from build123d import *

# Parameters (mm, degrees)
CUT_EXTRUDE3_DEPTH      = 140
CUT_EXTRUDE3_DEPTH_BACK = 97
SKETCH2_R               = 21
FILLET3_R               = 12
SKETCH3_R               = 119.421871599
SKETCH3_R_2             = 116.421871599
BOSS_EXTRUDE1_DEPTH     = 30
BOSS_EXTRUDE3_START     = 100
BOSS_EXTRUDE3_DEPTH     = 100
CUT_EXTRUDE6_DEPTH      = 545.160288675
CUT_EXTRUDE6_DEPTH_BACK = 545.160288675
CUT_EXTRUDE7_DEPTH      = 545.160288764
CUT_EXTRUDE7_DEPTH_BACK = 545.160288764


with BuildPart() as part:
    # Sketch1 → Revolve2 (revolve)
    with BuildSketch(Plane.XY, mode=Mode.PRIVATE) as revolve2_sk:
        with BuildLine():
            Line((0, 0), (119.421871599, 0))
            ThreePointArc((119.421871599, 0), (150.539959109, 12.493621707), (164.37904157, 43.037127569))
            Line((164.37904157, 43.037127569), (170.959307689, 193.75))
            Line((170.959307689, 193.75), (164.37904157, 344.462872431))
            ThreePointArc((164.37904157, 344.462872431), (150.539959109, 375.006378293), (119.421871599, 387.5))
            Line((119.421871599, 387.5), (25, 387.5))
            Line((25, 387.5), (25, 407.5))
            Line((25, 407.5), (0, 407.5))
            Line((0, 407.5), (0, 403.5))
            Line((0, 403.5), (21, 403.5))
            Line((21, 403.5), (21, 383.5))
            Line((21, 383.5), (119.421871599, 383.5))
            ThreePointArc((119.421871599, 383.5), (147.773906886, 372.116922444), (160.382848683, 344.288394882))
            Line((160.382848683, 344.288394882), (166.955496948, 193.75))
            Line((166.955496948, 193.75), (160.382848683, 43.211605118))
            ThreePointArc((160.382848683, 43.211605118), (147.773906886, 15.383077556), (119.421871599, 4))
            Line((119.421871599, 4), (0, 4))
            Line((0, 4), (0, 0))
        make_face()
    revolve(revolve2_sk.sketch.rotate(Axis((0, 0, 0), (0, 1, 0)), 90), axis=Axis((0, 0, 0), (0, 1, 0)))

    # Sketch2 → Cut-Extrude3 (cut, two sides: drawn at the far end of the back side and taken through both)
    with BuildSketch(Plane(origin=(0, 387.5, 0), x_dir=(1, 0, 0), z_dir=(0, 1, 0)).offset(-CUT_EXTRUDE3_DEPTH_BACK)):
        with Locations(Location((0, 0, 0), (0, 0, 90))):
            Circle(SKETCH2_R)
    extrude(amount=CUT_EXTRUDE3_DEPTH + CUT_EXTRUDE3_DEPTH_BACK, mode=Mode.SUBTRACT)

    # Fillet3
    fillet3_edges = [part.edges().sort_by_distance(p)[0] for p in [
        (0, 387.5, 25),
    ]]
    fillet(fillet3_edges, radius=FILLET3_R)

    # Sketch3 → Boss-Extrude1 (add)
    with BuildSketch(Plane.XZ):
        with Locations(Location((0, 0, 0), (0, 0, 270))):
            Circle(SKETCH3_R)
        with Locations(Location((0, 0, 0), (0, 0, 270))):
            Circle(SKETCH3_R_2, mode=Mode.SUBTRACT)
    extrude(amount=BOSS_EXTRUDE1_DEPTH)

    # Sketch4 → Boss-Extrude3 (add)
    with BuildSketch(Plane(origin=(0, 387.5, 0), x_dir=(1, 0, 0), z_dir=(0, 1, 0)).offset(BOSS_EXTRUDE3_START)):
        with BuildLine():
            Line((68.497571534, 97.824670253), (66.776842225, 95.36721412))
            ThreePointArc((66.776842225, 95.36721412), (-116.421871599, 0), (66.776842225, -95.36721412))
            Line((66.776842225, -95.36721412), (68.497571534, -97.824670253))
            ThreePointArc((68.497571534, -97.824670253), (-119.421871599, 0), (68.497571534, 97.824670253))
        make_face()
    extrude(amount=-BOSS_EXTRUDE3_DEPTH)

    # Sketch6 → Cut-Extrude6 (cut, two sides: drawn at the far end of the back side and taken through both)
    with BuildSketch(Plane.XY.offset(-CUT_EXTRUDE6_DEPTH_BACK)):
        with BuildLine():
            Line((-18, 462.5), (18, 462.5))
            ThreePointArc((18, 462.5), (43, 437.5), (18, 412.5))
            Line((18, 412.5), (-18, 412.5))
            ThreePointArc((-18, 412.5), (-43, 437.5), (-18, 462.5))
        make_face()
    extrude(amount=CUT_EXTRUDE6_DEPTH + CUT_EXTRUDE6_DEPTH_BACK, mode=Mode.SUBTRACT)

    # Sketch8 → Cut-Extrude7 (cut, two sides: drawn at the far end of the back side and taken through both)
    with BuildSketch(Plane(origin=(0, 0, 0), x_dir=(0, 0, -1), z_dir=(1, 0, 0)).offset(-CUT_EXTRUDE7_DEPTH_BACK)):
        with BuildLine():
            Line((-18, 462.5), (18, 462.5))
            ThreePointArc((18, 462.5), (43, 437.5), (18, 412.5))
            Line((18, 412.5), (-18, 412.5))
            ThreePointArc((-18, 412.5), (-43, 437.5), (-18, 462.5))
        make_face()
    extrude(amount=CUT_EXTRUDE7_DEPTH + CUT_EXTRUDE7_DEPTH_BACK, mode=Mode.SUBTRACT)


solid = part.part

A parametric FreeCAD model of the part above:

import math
import FreeCAD as App
import Part
import Sketcher
Q = App.Units.Quantity


def edges_at(feature, points):
    """Names of the edges that pass closest to the given points."""
    edges = feature.Shape.Edges
    near = lambda p: min(range(len(edges)), key=lambda i: edges[i].distToShape(Part.Vertex(*p))[0])
    return sorted({f"Edge{near(p) + 1}" for p in points})

doc = App.newDocument("Part")
body = doc.addObject("PartDesign::Body", "Body")

# Sketch on XY plane
sketch1 = doc.addObject("Sketcher::SketchObject", "Sketch")
body.addObject(sketch1)
sketch1.AttachmentSupport = (doc.XY_Plane, [""])
sketch1.MapMode = "FlatFace"
sketch1.addGeometry(Part.LineSegment(App.Vector(0, 0, 0), App.Vector(119.4, 0, 0)), False)
sketch1.addGeometry(Part.ArcOfCircle(Part.Circle(App.Vector(119.4, 45, 0), App.Vector(0, 0, 1), 45), math.radians(-90), math.radians(-2)), False)
sketch1.addGeometry(Part.LineSegment(App.Vector(164.4, 43, 0), App.Vector(171, 193.8, 0)), False)
sketch1.addGeometry(Part.LineSegment(App.Vector(171, 193.8, 0), App.Vector(164.4, 344.5, 0)), False)
sketch1.addGeometry(Part.ArcOfCircle(Part.Circle(App.Vector(119.4, 342.5, 0), App.Vector(0, 0, 1), 45), math.radians(2), math.radians(90)), False)
sketch1.addGeometry(Part.LineSegment(App.Vector(119.4, 387.5, 0), App.Vector(25, 387.5, 0)), False)
sketch1.addGeometry(Part.LineSegment(App.Vector(25, 387.5, 0), App.Vector(25, 407.5, 0)), False)
sketch1.addGeometry(Part.LineSegment(App.Vector(25, 407.5, 0), App.Vector(0, 407.5, 0)), False)
sketch1.addGeometry(Part.LineSegment(App.Vector(0, 407.5, 0), App.Vector(0, 403.5, 0)), False)
sketch1.addGeometry(Part.LineSegment(App.Vector(0, 403.5, 0), App.Vector(21, 403.5, 0)), False)
sketch1.addGeometry(Part.LineSegment(App.Vector(21, 403.5, 0), App.Vector(21, 383.5, 0)), False)
sketch1.addGeometry(Part.LineSegment(App.Vector(21, 383.5, 0), App.Vector(119.4, 383.5, 0)), False)
sketch1.addGeometry(Part.ArcOfCircle(Part.Circle(App.Vector(119.4, 342.5, 0), App.Vector(0, 0, 1), 41), math.radians(2), math.radians(90)), False)
sketch1.addGeometry(Part.LineSegment(App.Vector(160.4, 344.3, 0), App.Vector(167, 193.8, 0)), False)
sketch1.addGeometry(Part.LineSegment(App.Vector(167, 193.8, 0), App.Vector(160.4, 43.2, 0)), False)
sketch1.addGeometry(Part.ArcOfCircle(Part.Circle(App.Vector(119.4, 45, 0), App.Vector(0, 0, 1), 41), math.radians(-90), math.radians(-2)), False)
sketch1.addGeometry(Part.LineSegment(App.Vector(119.4, 4, 0), App.Vector(0, 4, 0)), False)
sketch1.addGeometry(Part.LineSegment(App.Vector(0, 4, 0), App.Vector(0, 0, 0)), False)
sketch1.addConstraint(Sketcher.Constraint("Tangent", 0, 2, 1, 1))
sketch1.addConstraint(Sketcher.Constraint("Tangent", 1, 2, 2, 1))
sketch1.addConstraint(Sketcher.Constraint("Coincident", 2, 2, 3, 1))
sketch1.addConstraint(Sketcher.Constraint("Tangent", 3, 2, 4, 1))
sketch1.addConstraint(Sketcher.Constraint("Tangent", 4, 2, 5, 1))
sketch1.addConstraint(Sketcher.Constraint("Coincident", 5, 2, 6, 1))
sketch1.addConstraint(Sketcher.Constraint("Coincident", 6, 2, 7, 1))
sketch1.addConstraint(Sketcher.Constraint("Coincident", 7, 2, 8, 1))
sketch1.addConstraint(Sketcher.Constraint("Coincident", 8, 2, 9, 1))
sketch1.addConstraint(Sketcher.Constraint("Coincident", 9, 2, 10, 1))
sketch1.addConstraint(Sketcher.Constraint("Coincident", 10, 2, 11, 1))
sketch1.addConstraint(Sketcher.Constraint("Tangent", 11, 2, 12, 2))
sketch1.addConstraint(Sketcher.Constraint("Tangent", 12, 1, 13, 1))
sketch1.addConstraint(Sketcher.Constraint("Coincident", 13, 2, 14, 1))
sketch1.addConstraint(Sketcher.Constraint("Tangent", 14, 2, 15, 2))
sketch1.addConstraint(Sketcher.Constraint("Tangent", 15, 1, 16, 1))
sketch1.addConstraint(Sketcher.Constraint("Coincident", 16, 2, 17, 1))
sketch1.addConstraint(Sketcher.Constraint("Coincident", 17, 2, 0, 1))
sketch1.addConstraint(Sketcher.Constraint("Horizontal", 0))
sketch1.addConstraint(Sketcher.Constraint("Horizontal", 5))
sketch1.addConstraint(Sketcher.Constraint("Vertical", 6))
sketch1.addConstraint(Sketcher.Constraint("Horizontal", 7))
sketch1.addConstraint(Sketcher.Constraint("Vertical", 8))
sketch1.addConstraint(Sketcher.Constraint("Horizontal", 9))
sketch1.addConstraint(Sketcher.Constraint("Vertical", 10))
sketch1.addConstraint(Sketcher.Constraint("Horizontal", 11))
sketch1.addConstraint(Sketcher.Constraint("Horizontal", 16))
sketch1.addConstraint(Sketcher.Constraint("Vertical", 17))
sketch1.addConstraint(Sketcher.Constraint("Coincident", 17, 2, -1, 1))
sketch1.addConstraint(Sketcher.Constraint("Coincident", 12, 3, 4, 3))
sketch1.addConstraint(Sketcher.Constraint("Coincident", 15, 3, 1, 3))
sketch1.addConstraint(Sketcher.Constraint("Equal", 1, 4))
sketch1.addConstraint(Sketcher.Constraint("Equal", 12, 15))
sketch1.addConstraint(Sketcher.Constraint("PointOnObject", 7, 2, -2))
sketch1.addConstraint(Sketcher.Constraint("Parallel", 3, 13))
sketch1.addConstraint(Sketcher.Constraint("Parallel", 2, 14))
sketch1.addConstraint(Sketcher.Constraint("Horizontal", 2, 2, 13, 2))
sketch1.addConstraint(Sketcher.Constraint("Vertical", 1, 3, 4, 3))
sketch1.addConstraint(Sketcher.Constraint("Equal", 6, 10))
sketch1.addConstraint(Sketcher.Constraint("Radius", 1, 45.0))
sketch1.addConstraint(Sketcher.Constraint("Radius", 12, 41.0))
sketch1.addConstraint(Sketcher.Constraint("DistanceX", 7, 2, 7, 1, 25.0))
sketch1.addConstraint(Sketcher.Constraint("DistanceX", 9, 1, 9, 2, 21.0))
sketch1.addConstraint(Sketcher.Constraint("DistanceY", 6, 1, 6, 2, 20.0))
sketch1.addConstraint(Sketcher.Constraint("Angle", 2, Q("87.5 deg")))
sketch1.addConstraint(Sketcher.Constraint("DistanceY", -1, 1, 4, 3, 342.5))
sketch1.addConstraint(Sketcher.Constraint("DistanceX", 0, 1, 0, 2, 119.421872))
revolution = doc.addObject("PartDesign::Revolution", "Revolution")
body.addObject(revolution)
revolution.Profile = sketch1
revolution.ReferenceAxis = (sketch1, ["V_Axis"])
revolution.Angle = 360

# Sketch on XZ plane
sketch2 = doc.addObject("Sketcher::SketchObject", "Sketch001")
body.addObject(sketch2)
sketch2.AttachmentSupport = (doc.XZ_Plane, [""])
sketch2.MapMode = "FlatFace"
sketch2.AttachmentOffset = App.Placement(App.Vector(0, 0, -387.5), App.Rotation())
sketch2.addGeometry(Part.Circle(App.Vector(0, 0, 0), App.Vector(0, 0, 1), 21), False)
sketch2.addConstraint(Sketcher.Constraint("Coincident", 0, 3, -1, 1))
sketch2.addConstraint(Sketcher.Constraint("Diameter", 0, 42.0))
pocket1 = doc.addObject("PartDesign::Pocket", "Pocket")
body.addObject(pocket1)
pocket1.Profile = sketch2
pocket1.Type = "TwoLengths"
pocket1.Length = 140
pocket1.Length2 = 97
doc.recompute()

fillet = doc.addObject("PartDesign::Fillet", "Fillet")
body.addObject(fillet)
fillet.Base = (pocket1, edges_at(pocket1, [(0, 387.5, 25)]))
fillet.Radius = 12

# Sketch on XZ plane
sketch3 = doc.addObject("Sketcher::SketchObject", "Sketch002")
body.addObject(sketch3)
sketch3.AttachmentSupport = (doc.XZ_Plane, [""])
sketch3.MapMode = "FlatFace"
sketch3.addGeometry(Part.Circle(App.Vector(0, 0, 0), App.Vector(0, 0, 1), 119), False)
sketch3.addGeometry(Part.Circle(App.Vector(0, 0, 0), App.Vector(0, 0, 1), 116), False)
sketch3.addConstraint(Sketcher.Constraint("Coincident", 0, 3, -1, 1))
sketch3.addConstraint(Sketcher.Constraint("Coincident", 1, 3, -1, 1))
sketch3.addConstraint(Sketcher.Constraint("Diameter", 0, 238.843743))
sketch3.addConstraint(Sketcher.Constraint("Diameter", 1, 232.843743))
pad1 = doc.addObject("PartDesign::Pad", "Pad")
body.addObject(pad1)
pad1.Profile = sketch3
pad1.Length = 30

# Sketch on XZ plane
sketch4 = doc.addObject("Sketcher::SketchObject", "Sketch003")
body.addObject(sketch4)
sketch4.AttachmentSupport = (doc.XZ_Plane, [""])
sketch4.MapMode = "FlatFace"
sketch4.AttachmentOffset = App.Placement(App.Vector(0, 0, -487.5), App.Rotation())
sketch4.addGeometry(Part.LineSegment(App.Vector(66.8, -95.4, 0), App.Vector(68.5, -97.8, 0)), False)
sketch4.addGeometry(Part.ArcOfCircle(Part.Circle(App.Vector(0, 0, 0), App.Vector(0, 0, 1), 119.4), math.radians(55), math.radians(305)), False)
sketch4.addGeometry(Part.LineSegment(App.Vector(68.5, 97.8, 0), App.Vector(66.8, 95.4, 0)), False)
sketch4.addGeometry(Part.ArcOfCircle(Part.Circle(App.Vector(0, 0, 0), App.Vector(0, 0, 1), 116.4), math.radians(55), math.radians(305)), False)
sketch4.addConstraint(Sketcher.Constraint("Coincident", 0, 2, 1, 2))
sketch4.addConstraint(Sketcher.Constraint("Coincident", 1, 1, 2, 1))
sketch4.addConstraint(Sketcher.Constraint("Coincident", 2, 2, 3, 1))
sketch4.addConstraint(Sketcher.Constraint("Coincident", 3, 2, 0, 1))
sketch4.addConstraint(Sketcher.Constraint("Coincident", 1, 3, -1, 1))
sketch4.addConstraint(Sketcher.Constraint("Coincident", 3, 3, -1, 1))
sketch4.addConstraint(Sketcher.Constraint("Vertical", 0, 2, 1, 1))
sketch4.addConstraint(Sketcher.Constraint("Vertical", 2, 2, 3, 2))
sketch4.addConstraint(Sketcher.Constraint("Angle", 0, Q("-55 deg")))
sketch4.addConstraint(Sketcher.Constraint("Distance", 0, 3.0))
sketch4.addConstraint(Sketcher.Constraint("Radius", 1, 119.421872))
sketch4.addConstraint(Sketcher.Constraint("DistanceX", -1, 1, 0, 2, 68.497572))
pad2 = doc.addObject("PartDesign::Pad", "Pad001")
body.addObject(pad2)
pad2.Profile = sketch4
pad2.Length = 100

# Sketch on XY plane
sketch5 = doc.addObject("Sketcher::SketchObject", "Sketch004")
body.addObject(sketch5)
sketch5.AttachmentSupport = (doc.XY_Plane, [""])
sketch5.MapMode = "FlatFace"
sketch5.addGeometry(Part.LineSegment(App.Vector(18, 462, 0), App.Vector(-18, 462, 0)), False)
sketch5.addGeometry(Part.ArcOfCircle(Part.Circle(App.Vector(-18, 438, 0), App.Vector(0, 0, 1), 25), math.radians(90), math.radians(270)), False)
sketch5.addGeometry(Part.LineSegment(App.Vector(-18, 412, 0), App.Vector(18, 412, 0)), False)
sketch5.addGeometry(Part.ArcOfCircle(Part.Circle(App.Vector(18, 438, 0), App.Vector(0, 0, 1), 25), math.radians(-90), math.radians(90)), False)
sketch5.addConstraint(Sketcher.Constraint("Tangent", 0, 2, 1, 1))
sketch5.addConstraint(Sketcher.Constraint("Tangent", 1, 2, 2, 1))
sketch5.addConstraint(Sketcher.Constraint("Tangent", 2, 2, 3, 1))
sketch5.addConstraint(Sketcher.Constraint("Tangent", 3, 2, 0, 1))
sketch5.addConstraint(Sketcher.Constraint("Horizontal", 0))
sketch5.addConstraint(Sketcher.Constraint("Horizontal", 2))
sketch5.addConstraint(Sketcher.Constraint("Radius", 1, 25.0))
sketch5.addConstraint(Sketcher.Constraint("DistanceX", 0, 2, 0, 1, 36.0))
sketch5.addConstraint(Sketcher.Constraint("DistanceX", 1, 3, -1, 1, 18.0))
sketch5.addConstraint(Sketcher.Constraint("DistanceY", -1, 1, 1, 3, 437.5))
pocket2 = doc.addObject("PartDesign::Pocket", "Pocket001")
body.addObject(pocket2)
pocket2.Profile = sketch5
pocket2.Type = "ThroughAll"
pocket2.Midplane = True

# Sketch on YZ plane
sketch6 = doc.addObject("Sketcher::SketchObject", "Sketch005")
body.addObject(sketch6)
sketch6.AttachmentSupport = (doc.YZ_Plane, [""])
sketch6.MapMode = "FlatFace"
sketch6.addGeometry(Part.LineSegment(App.Vector(462, -18, 0), App.Vector(462, 18, 0)), False)
sketch6.addGeometry(Part.ArcOfCircle(Part.Circle(App.Vector(438, 18, 0), App.Vector(0, 0, 1), 25), math.radians(0), math.radians(180)), False)
sketch6.addGeometry(Part.LineSegment(App.Vector(412, 18, 0), App.Vector(412, -18, 0)), False)
sketch6.addGeometry(Part.ArcOfCircle(Part.Circle(App.Vector(438, -18, 0), App.Vector(0, 0, 1), 25), math.radians(180), math.radians(360)), False)
sketch6.addConstraint(Sketcher.Constraint("Tangent", 0, 2, 1, 1))
sketch6.addConstraint(Sketcher.Constraint("Tangent", 1, 2, 2, 1))
sketch6.addConstraint(Sketcher.Constraint("Tangent", 2, 2, 3, 1))
sketch6.addConstraint(Sketcher.Constraint("Tangent", 3, 2, 0, 1))
sketch6.addConstraint(Sketcher.Constraint("Vertical", 0))
sketch6.addConstraint(Sketcher.Constraint("Vertical", 2))
sketch6.addConstraint(Sketcher.Constraint("Radius", 1, 25.0))
sketch6.addConstraint(Sketcher.Constraint("DistanceY", 0, 1, 0, 2, 36.0))
sketch6.addConstraint(Sketcher.Constraint("DistanceY", -1, 1, 1, 3, 18.0))
sketch6.addConstraint(Sketcher.Constraint("DistanceX", -1, 1, 1, 3, 437.5))
pocket3 = doc.addObject("PartDesign::Pocket", "Pocket002")
body.addObject(pocket3)
pocket3.Profile = sketch6
pocket3.Type = "ThroughAll"
pocket3.Midplane = True

doc.recompute()
